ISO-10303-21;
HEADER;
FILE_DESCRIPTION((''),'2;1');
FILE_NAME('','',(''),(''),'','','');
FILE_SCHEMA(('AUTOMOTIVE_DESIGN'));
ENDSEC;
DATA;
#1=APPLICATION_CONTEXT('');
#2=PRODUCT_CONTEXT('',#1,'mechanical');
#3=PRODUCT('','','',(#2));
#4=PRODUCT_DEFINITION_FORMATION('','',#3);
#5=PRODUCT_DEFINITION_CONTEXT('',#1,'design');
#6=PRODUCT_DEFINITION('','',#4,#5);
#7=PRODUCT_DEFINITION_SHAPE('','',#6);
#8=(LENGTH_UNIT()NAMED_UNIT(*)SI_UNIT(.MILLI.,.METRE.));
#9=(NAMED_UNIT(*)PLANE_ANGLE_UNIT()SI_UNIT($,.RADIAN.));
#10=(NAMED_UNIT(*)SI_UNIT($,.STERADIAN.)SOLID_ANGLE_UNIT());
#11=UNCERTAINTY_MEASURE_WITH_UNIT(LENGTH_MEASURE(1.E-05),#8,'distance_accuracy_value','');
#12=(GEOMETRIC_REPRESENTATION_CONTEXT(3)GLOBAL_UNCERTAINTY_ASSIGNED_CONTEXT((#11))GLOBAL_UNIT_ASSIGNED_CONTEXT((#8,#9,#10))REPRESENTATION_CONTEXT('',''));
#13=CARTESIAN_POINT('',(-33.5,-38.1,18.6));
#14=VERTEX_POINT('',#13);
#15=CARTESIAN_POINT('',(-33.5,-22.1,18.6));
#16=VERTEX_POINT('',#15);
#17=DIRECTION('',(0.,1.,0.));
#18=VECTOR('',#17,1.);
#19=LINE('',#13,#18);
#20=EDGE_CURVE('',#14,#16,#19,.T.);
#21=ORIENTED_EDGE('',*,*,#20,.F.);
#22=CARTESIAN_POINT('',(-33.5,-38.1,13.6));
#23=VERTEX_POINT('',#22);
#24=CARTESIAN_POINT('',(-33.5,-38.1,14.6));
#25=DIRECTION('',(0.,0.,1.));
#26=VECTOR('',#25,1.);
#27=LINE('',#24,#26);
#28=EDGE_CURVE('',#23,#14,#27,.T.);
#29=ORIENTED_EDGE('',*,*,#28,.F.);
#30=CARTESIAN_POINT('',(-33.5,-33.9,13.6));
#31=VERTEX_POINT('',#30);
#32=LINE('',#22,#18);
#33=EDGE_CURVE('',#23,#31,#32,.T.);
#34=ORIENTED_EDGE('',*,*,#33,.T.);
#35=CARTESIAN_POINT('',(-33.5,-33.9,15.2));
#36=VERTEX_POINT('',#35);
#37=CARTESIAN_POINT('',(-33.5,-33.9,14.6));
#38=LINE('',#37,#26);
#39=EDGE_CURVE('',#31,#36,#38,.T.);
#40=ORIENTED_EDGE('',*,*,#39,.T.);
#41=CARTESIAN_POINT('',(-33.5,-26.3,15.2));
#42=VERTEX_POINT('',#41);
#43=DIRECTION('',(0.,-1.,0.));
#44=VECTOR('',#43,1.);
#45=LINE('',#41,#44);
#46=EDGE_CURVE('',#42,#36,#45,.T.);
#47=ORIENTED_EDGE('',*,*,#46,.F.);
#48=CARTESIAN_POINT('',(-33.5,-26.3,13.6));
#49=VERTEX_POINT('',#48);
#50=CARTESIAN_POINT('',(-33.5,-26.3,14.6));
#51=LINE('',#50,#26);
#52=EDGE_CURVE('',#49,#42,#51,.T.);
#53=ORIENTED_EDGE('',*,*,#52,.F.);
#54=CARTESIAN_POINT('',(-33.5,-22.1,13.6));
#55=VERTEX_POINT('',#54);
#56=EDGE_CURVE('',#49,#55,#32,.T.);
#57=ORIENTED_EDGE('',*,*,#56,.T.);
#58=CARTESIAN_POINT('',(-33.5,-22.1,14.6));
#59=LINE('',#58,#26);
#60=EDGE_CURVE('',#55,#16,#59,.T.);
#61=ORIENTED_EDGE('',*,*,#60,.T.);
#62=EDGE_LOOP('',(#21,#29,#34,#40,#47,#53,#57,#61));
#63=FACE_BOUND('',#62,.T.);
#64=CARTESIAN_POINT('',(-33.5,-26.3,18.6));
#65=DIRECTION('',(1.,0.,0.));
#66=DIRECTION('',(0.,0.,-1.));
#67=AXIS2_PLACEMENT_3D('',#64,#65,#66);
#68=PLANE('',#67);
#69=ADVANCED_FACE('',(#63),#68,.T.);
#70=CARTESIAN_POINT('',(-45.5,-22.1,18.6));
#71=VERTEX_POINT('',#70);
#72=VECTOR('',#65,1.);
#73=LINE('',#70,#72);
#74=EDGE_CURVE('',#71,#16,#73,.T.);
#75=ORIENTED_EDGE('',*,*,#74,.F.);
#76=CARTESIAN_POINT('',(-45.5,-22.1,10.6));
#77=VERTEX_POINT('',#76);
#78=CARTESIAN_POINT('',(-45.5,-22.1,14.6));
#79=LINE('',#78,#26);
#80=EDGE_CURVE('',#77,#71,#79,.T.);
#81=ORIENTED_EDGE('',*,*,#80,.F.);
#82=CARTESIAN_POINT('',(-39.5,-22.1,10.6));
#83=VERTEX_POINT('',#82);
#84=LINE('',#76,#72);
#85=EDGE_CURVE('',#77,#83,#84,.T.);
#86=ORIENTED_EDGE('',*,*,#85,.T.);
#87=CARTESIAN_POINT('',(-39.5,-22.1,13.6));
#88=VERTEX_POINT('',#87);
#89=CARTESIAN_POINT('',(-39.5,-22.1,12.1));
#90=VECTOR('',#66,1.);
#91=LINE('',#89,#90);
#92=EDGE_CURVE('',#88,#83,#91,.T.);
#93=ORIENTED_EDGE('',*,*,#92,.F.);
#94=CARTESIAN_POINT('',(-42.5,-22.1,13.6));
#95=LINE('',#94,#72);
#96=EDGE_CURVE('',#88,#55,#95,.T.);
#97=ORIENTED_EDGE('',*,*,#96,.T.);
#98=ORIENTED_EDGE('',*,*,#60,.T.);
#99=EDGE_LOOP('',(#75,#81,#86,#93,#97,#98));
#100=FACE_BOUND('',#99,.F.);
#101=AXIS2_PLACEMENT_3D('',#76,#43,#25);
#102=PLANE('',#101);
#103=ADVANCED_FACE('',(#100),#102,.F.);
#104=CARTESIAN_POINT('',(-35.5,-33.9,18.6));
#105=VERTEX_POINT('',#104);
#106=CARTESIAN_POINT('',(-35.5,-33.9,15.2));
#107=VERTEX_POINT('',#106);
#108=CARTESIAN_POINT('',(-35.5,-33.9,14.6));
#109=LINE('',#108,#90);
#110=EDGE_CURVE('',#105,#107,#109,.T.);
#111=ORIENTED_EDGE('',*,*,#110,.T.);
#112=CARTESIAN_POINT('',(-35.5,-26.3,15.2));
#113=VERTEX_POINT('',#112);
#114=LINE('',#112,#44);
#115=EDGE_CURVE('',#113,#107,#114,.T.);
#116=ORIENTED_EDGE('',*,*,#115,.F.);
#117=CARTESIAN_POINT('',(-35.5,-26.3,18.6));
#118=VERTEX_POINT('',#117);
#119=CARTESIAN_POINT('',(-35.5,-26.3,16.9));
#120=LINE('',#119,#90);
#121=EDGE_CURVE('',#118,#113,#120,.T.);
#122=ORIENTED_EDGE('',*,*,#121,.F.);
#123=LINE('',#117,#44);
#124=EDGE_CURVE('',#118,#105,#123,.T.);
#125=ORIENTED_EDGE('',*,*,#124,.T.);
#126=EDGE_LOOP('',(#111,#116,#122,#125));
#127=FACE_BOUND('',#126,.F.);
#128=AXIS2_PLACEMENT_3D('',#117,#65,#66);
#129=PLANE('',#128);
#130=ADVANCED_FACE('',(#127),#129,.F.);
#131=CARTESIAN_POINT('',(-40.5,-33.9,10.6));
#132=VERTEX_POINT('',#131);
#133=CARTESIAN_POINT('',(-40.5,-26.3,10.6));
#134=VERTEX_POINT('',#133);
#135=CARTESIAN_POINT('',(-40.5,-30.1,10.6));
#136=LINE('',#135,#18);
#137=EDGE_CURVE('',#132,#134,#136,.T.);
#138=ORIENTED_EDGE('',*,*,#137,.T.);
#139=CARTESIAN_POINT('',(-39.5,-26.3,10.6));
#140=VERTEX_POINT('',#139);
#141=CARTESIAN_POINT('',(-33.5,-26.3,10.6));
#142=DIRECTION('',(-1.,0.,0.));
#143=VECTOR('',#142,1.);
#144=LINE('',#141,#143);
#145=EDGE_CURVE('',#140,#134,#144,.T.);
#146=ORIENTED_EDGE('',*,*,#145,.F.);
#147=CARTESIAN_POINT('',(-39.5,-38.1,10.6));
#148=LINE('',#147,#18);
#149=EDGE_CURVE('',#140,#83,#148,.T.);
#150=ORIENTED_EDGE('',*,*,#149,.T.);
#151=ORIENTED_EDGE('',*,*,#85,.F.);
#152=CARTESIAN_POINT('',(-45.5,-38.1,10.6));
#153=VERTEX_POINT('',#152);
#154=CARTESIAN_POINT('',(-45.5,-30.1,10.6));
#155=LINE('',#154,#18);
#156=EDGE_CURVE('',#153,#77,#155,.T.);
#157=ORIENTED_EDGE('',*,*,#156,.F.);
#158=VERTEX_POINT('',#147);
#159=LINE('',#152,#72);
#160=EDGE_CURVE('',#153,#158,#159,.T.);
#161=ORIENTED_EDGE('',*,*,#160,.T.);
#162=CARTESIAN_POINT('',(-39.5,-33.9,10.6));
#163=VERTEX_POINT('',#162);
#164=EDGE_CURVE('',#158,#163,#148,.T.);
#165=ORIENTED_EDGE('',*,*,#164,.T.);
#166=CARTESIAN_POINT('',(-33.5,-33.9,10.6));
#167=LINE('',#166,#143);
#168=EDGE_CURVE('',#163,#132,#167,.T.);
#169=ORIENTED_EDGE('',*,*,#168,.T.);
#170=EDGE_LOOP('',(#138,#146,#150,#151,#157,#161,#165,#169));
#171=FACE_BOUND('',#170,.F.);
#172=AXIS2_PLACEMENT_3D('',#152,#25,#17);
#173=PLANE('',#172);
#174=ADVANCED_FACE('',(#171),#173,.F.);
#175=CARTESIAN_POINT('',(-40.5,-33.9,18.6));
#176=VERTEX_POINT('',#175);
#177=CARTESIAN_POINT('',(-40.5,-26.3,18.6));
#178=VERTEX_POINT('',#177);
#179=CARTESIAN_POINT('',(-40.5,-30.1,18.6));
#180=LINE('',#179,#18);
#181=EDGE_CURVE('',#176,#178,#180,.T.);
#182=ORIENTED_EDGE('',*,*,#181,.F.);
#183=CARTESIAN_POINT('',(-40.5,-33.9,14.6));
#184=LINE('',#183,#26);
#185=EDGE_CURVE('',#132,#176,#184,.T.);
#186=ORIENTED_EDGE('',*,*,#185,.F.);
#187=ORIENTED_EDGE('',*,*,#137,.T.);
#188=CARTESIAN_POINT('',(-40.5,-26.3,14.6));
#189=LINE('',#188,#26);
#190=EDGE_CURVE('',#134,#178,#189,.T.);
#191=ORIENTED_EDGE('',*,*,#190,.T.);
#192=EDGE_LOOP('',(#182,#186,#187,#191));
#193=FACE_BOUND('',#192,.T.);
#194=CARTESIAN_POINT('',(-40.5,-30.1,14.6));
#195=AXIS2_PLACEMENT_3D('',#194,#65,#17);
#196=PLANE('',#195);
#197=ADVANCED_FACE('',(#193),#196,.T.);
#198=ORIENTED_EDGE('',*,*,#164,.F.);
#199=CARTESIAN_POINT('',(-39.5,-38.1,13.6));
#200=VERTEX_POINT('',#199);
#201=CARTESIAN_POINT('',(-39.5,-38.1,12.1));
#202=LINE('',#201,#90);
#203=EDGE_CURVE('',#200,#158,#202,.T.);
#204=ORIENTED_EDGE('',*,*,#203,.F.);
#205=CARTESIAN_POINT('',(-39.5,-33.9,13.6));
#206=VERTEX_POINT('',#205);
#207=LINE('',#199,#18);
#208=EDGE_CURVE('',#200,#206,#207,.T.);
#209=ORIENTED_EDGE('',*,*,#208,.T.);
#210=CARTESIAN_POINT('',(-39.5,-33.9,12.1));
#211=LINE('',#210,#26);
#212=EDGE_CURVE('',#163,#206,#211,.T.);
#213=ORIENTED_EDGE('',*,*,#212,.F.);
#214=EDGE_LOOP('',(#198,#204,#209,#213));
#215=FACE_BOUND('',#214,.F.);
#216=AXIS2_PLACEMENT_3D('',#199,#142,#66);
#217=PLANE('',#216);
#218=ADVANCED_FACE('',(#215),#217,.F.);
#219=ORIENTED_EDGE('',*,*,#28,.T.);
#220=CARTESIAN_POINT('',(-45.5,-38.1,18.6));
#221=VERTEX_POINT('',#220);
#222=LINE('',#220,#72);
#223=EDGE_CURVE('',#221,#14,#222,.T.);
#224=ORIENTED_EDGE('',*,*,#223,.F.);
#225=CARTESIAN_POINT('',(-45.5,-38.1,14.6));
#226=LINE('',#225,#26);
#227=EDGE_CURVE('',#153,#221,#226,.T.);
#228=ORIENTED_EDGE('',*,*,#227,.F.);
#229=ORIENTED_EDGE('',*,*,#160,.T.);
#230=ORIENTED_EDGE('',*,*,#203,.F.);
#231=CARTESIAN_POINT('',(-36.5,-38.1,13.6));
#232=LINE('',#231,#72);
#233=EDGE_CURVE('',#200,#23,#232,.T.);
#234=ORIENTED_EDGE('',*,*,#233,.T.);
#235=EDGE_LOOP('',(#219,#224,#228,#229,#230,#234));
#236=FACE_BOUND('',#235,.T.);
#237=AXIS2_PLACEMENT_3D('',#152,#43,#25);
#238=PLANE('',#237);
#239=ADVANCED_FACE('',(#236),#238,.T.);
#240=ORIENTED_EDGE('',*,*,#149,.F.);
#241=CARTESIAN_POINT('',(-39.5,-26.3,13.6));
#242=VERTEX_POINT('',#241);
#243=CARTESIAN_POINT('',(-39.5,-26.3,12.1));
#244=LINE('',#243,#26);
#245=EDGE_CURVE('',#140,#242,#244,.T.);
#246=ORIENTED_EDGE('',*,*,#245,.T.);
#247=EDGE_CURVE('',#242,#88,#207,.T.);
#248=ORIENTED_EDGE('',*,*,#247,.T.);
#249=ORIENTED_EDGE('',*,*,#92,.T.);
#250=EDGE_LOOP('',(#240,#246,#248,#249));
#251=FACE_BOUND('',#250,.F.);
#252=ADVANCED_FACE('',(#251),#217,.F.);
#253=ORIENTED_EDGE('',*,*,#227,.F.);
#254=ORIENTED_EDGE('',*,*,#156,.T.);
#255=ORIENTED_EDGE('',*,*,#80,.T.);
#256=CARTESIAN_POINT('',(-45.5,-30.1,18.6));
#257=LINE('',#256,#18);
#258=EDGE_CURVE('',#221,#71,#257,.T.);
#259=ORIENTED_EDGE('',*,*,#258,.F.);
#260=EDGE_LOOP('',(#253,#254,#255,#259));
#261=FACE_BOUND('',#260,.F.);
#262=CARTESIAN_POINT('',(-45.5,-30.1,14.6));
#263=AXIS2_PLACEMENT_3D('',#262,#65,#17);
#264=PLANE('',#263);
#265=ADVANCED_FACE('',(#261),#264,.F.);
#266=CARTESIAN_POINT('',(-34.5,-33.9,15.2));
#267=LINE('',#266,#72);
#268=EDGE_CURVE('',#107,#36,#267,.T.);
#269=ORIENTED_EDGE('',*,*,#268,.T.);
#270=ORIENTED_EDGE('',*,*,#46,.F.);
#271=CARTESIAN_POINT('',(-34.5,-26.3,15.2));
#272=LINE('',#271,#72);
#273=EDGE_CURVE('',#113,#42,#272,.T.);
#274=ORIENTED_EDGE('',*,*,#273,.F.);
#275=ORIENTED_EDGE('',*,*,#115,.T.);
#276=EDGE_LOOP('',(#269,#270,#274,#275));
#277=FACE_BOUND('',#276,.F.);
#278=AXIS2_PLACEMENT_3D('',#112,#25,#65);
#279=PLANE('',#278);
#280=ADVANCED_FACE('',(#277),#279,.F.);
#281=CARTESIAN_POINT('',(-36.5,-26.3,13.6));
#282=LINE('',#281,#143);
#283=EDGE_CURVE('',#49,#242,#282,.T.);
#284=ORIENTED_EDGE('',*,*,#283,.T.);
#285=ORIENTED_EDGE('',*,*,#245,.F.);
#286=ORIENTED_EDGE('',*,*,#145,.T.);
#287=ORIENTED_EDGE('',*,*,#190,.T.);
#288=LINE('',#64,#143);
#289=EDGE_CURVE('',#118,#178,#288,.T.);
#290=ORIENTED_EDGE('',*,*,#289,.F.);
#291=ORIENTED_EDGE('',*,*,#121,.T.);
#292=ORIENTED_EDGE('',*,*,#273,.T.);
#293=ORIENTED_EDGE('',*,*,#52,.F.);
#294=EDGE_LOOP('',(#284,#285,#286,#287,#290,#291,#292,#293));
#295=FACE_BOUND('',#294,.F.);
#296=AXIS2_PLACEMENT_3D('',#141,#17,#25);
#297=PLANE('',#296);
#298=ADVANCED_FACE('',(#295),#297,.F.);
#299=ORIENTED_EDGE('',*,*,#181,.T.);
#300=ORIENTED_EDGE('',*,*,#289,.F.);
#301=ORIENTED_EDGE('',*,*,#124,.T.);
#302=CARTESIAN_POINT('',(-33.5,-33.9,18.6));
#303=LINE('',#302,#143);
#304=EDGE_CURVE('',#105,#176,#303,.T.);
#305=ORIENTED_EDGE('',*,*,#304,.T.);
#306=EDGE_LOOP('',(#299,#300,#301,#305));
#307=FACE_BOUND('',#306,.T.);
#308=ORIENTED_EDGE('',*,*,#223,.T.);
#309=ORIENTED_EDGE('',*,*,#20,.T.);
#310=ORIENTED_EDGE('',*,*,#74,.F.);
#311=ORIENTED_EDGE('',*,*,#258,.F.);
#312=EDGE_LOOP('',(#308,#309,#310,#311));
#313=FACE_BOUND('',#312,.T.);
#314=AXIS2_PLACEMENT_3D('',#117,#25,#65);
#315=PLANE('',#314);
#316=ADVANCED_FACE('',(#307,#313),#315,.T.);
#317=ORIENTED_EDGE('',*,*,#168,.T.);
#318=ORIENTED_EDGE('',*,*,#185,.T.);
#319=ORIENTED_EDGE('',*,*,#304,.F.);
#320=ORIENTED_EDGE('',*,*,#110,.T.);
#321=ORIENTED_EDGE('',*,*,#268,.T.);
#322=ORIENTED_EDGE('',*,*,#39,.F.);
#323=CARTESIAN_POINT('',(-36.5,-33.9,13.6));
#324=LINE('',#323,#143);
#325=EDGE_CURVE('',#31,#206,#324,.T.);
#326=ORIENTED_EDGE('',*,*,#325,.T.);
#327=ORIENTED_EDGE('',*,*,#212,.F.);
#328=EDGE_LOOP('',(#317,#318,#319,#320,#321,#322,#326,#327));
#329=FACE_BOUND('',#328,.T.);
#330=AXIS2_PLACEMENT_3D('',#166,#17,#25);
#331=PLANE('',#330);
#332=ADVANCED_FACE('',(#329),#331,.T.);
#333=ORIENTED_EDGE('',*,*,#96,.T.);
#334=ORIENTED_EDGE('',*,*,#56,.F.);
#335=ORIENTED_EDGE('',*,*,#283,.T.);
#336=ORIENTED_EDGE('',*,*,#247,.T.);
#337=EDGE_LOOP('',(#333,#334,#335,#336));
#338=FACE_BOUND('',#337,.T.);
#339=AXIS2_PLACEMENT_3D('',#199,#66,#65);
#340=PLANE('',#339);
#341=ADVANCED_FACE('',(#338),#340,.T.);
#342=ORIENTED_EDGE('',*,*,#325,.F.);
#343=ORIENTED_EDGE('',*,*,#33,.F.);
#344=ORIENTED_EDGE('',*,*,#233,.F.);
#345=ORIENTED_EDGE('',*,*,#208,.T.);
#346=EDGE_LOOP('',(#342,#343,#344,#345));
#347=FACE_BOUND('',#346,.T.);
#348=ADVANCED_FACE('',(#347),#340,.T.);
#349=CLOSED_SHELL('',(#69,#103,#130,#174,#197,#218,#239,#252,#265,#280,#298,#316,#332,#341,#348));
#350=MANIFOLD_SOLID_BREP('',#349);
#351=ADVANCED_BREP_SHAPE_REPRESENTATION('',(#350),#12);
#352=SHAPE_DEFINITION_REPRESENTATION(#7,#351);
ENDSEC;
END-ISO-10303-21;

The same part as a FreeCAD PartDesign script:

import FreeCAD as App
import Part
import Sketcher
Q = App.Units.Quantity

doc = App.newDocument("Part")
params = doc.addObject("Spreadsheet::Sheet", "Params")
for row, (alias, value) in enumerate([
    ("sketch1_width", "16 mm"),
    ("sketch1_height", "8 mm"),
    ("pad1_length", "12 mm"),
    ("sketch2_height", "8 mm"),
    ("sketch2_width", "7.6 mm"),
    ("pocket1_length", "7 mm"),
    ("sketch3_width", "6 mm"),
    ("sketch3_height", "3 mm"),
    ("sketch4_width", "2 mm"),
    ("sketch4_height", "3.4 mm"),
    ("pad2_length", "9 mm"),
], start=1):
    params.set(f"A{row}", alias)
    params.set(f"B{row}", "=" + value)
    params.setAlias(f"B{row}", alias)

body = doc.addObject("PartDesign::Body", "Body")

sketch1 = body.newObject("Sketcher::SketchObject", "Sketch")
sketch1.AttachmentSupport = (doc.getObject("YZ_Plane"), [""])
sketch1.MapMode = "FlatFace"
sketch1.addGeometry(Part.LineSegment(App.Vector(-8, 8, 0), App.Vector(-8, 0, 0)), False)
sketch1.addGeometry(Part.LineSegment(App.Vector(-8, 0, 0), App.Vector(8, 0, 0)), False)
sketch1.addGeometry(Part.LineSegment(App.Vector(8, 0, 0), App.Vector(8, 8, 0)), False)
sketch1.addGeometry(Part.LineSegment(App.Vector(8, 8, 0), App.Vector(-8, 8, 0)), False)
sketch1.addConstraint(Sketcher.Constraint("Coincident", 0, 2, 1, 1))
sketch1.addConstraint(Sketcher.Constraint("Coincident", 1, 2, 2, 1))
sketch1.addConstraint(Sketcher.Constraint("Coincident", 2, 2, 3, 1))
sketch1.addConstraint(Sketcher.Constraint("Coincident", 3, 2, 0, 1))
sketch1.addConstraint(Sketcher.Constraint("Vertical", 0))
sketch1.addConstraint(Sketcher.Constraint("Horizontal", 1))
sketch1.addConstraint(Sketcher.Constraint("Vertical", 2))
sketch1.addConstraint(Sketcher.Constraint("Horizontal", 3))
sketch1.addConstraint(Sketcher.Constraint("Symmetric", 0, 2, 1, 2, -1, 1))
sketch1.addConstraint(Sketcher.Constraint("DistanceX", 1, 1, 1, 2, Q("16 mm")))
sketch1.addConstraint(Sketcher.Constraint("DistanceY", 0, 2, 0, 1, Q("8 mm")))
sketch1.setExpression("Constraints[9]", "Params.sketch1_width")
sketch1.setExpression("Constraints[10]", "Params.sketch1_height")
pad1 = body.newObject("PartDesign::Pad", "Pad")
pad1.Profile = sketch1
pad1.setExpression("Length", "Params.pad1_length")

sketch2 = body.newObject("Sketcher::SketchObject", "Sketch001")
sketch2.AttachmentSupport = (doc.getObject("YZ_Plane"), [""])
sketch2.MapMode = "FlatFace"
sketch2.AttachmentOffset = App.Placement(App.Vector(0, 0, 12), App.Rotation())
sketch2.addGeometry(Part.LineSegment(App.Vector(-4, 8, 0), App.Vector(-4, 0, 0)), False)
sketch2.addGeometry(Part.LineSegment(App.Vector(-4, 0, 0), App.Vector(4, 0, 0)), False)
sketch2.addGeometry(Part.LineSegment(App.Vector(4, 0, 0), App.Vector(4, 8, 0)), False)
sketch2.addGeometry(Part.LineSegment(App.Vector(4, 8, 0), App.Vector(-4, 8, 0)), False)
sketch2.addConstraint(Sketcher.Constraint("Coincident", 0, 2, 1, 1))
sketch2.addConstraint(Sketcher.Constraint("Coincident", 1, 2, 2, 1))
sketch2.addConstraint(Sketcher.Constraint("Coincident", 2, 2, 3, 1))
sketch2.addConstraint(Sketcher.Constraint("Coincident", 3, 2, 0, 1))
sketch2.addConstraint(Sketcher.Constraint("Vertical", 0))
sketch2.addConstraint(Sketcher.Constraint("Horizontal", 1))
sketch2.addConstraint(Sketcher.Constraint("Vertical", 2))
sketch2.addConstraint(Sketcher.Constraint("Horizontal", 3))
sketch2.addConstraint(Sketcher.Constraint("Symmetric", 0, 2, 1, 2, -1, 1))
sketch2.addConstraint(Sketcher.Constraint("DistanceY", 0, 2, 0, 1, Q("8 mm")))
sketch2.addConstraint(Sketcher.Constraint("DistanceX", 1, 1, 1, 2, Q("7.6 mm")))
sketch2.setExpression("Constraints[9]", "Params.sketch2_height")
sketch2.setExpression("Constraints[10]", "Params.sketch2_width")
pocket1 = body.newObject("PartDesign::Pocket", "Pocket")
pocket1.Profile = sketch2
pocket1.setExpression("Length", "Params.pocket1_length")

sketch3 = body.newObject("Sketcher::SketchObject", "Sketch002")
sketch3.AttachmentSupport = (doc.getObject("XZ_Plane"), [""])
sketch3.MapMode = "FlatFace"
sketch3.AttachmentOffset = App.Placement(App.Vector(0, 0, 8), App.Rotation())
sketch3.addGeometry(Part.LineSegment(App.Vector(12, 3, 0), App.Vector(6, 3, 0)), False)
sketch3.addGeometry(Part.LineSegment(App.Vector(6, 3, 0), App.Vector(6, 0, 0)), False)
sketch3.addGeometry(Part.LineSegment(App.Vector(6, 0, 0), App.Vector(12, 0, 0)), False)
sketch3.addGeometry(Part.LineSegment(App.Vector(12, 0, 0), App.Vector(12, 3, 0)), False)
sketch3.addConstraint(Sketcher.Constraint("Coincident", 0, 2, 1, 1))
sketch3.addConstraint(Sketcher.Constraint("Coincident", 1, 2, 2, 1))
sketch3.addConstraint(Sketcher.Constraint("Coincident", 2, 2, 3, 1))
sketch3.addConstraint(Sketcher.Constraint("Coincident", 3, 2, 0, 1))
sketch3.addConstraint(Sketcher.Constraint("Horizontal", 0))
sketch3.addConstraint(Sketcher.Constraint("Vertical", 1))
sketch3.addConstraint(Sketcher.Constraint("Horizontal", 2))
sketch3.addConstraint(Sketcher.Constraint("Vertical", 3))
sketch3.addConstraint(Sketcher.Constraint("PointOnObject", 1, 2, -1))
sketch3.addConstraint(Sketcher.Constraint("DistanceX", 0, 2, 0, 1, Q("6 mm")))
sketch3.addConstraint(Sketcher.Constraint("DistanceY", 1, 2, 1, 1, Q("3 mm")))
sketch3.addConstraint(Sketcher.Constraint("DistanceX", -1, 1, 0, 2, Q("6 mm")))
sketch3.setExpression("Constraints[9]", "Params.sketch3_width")
sketch3.setExpression("Constraints[10]", "Params.sketch3_height")
pocket2 = body.newObject("PartDesign::Pocket", "Pocket001")
pocket2.Profile = sketch3
pocket2.Type = "ThroughAll"

sketch4 = body.newObject("Sketcher::SketchObject", "Sketch003")
sketch4.AttachmentSupport = (doc.getObject("XZ_Plane"), [""])
sketch4.MapMode = "FlatFace"
sketch4.AttachmentOffset = App.Placement(App.Vector(0, 0, -3.8), App.Rotation())
sketch4.addGeometry(Part.LineSegment(App.Vector(12, 8, 0), App.Vector(10, 8, 0)), False)
sketch4.addGeometry(Part.LineSegment(App.Vector(10, 8, 0), App.Vector(10, 4.6, 0)), False)
sketch4.addGeometry(Part.LineSegment(App.Vector(10, 4.6, 0), App.Vector(12, 4.6, 0)), False)
sketch4.addGeometry(Part.LineSegment(App.Vector(12, 4.6, 0), App.Vector(12, 8, 0)), False)
sketch4.addConstraint(Sketcher.Constraint("Coincident", 0, 2, 1, 1))
sketch4.addConstraint(Sketcher.Constraint("Coincident", 1, 2, 2, 1))
sketch4.addConstraint(Sketcher.Constraint("Coincident", 2, 2, 3, 1))
sketch4.addConstraint(Sketcher.Constraint("Coincident", 3, 2, 0, 1))
sketch4.addConstraint(Sketcher.Constraint("Horizontal", 0))
sketch4.addConstraint(Sketcher.Constraint("Vertical", 1))
sketch4.addConstraint(Sketcher.Constraint("Horizontal", 2))
sketch4.addConstraint(Sketcher.Constraint("Vertical", 3))
sketch4.addConstraint(Sketcher.Constraint("DistanceX", 0, 2, 0, 1, Q("2 mm")))
sketch4.addConstraint(Sketcher.Constraint("DistanceY", 1, 2, 1, 1, Q("3.4 mm")))
sketch4.addConstraint(Sketcher.Constraint("DistanceX", -1, 1, 0, 2, Q("10 mm")))
sketch4.addConstraint(Sketcher.Constraint("DistanceY", -1, 1, 0, 2, Q("8 mm")))
sketch4.setExpression("Constraints[8]", "Params.sketch4_width")
sketch4.setExpression("Constraints[9]", "Params.sketch4_height")
pad2 = body.newObject("PartDesign::Pad", "Pad001")
pad2.Profile = sketch4
pad2.setExpression("Length", "Params.pad2_length")
body2 = doc.addObject("PartDesign::Body", "Body001")
doc.recompute()

body.Placement = App.Placement(App.Vector(-45.5, -30.1, 10.6), App.Rotation(App.Vector(0, 0, 1), 0))
boolean = body2.newObject("PartDesign::Boolean", "Boolean")
boolean.Type = "Fuse"
boolean.addObjects([body])

doc.recompute()
